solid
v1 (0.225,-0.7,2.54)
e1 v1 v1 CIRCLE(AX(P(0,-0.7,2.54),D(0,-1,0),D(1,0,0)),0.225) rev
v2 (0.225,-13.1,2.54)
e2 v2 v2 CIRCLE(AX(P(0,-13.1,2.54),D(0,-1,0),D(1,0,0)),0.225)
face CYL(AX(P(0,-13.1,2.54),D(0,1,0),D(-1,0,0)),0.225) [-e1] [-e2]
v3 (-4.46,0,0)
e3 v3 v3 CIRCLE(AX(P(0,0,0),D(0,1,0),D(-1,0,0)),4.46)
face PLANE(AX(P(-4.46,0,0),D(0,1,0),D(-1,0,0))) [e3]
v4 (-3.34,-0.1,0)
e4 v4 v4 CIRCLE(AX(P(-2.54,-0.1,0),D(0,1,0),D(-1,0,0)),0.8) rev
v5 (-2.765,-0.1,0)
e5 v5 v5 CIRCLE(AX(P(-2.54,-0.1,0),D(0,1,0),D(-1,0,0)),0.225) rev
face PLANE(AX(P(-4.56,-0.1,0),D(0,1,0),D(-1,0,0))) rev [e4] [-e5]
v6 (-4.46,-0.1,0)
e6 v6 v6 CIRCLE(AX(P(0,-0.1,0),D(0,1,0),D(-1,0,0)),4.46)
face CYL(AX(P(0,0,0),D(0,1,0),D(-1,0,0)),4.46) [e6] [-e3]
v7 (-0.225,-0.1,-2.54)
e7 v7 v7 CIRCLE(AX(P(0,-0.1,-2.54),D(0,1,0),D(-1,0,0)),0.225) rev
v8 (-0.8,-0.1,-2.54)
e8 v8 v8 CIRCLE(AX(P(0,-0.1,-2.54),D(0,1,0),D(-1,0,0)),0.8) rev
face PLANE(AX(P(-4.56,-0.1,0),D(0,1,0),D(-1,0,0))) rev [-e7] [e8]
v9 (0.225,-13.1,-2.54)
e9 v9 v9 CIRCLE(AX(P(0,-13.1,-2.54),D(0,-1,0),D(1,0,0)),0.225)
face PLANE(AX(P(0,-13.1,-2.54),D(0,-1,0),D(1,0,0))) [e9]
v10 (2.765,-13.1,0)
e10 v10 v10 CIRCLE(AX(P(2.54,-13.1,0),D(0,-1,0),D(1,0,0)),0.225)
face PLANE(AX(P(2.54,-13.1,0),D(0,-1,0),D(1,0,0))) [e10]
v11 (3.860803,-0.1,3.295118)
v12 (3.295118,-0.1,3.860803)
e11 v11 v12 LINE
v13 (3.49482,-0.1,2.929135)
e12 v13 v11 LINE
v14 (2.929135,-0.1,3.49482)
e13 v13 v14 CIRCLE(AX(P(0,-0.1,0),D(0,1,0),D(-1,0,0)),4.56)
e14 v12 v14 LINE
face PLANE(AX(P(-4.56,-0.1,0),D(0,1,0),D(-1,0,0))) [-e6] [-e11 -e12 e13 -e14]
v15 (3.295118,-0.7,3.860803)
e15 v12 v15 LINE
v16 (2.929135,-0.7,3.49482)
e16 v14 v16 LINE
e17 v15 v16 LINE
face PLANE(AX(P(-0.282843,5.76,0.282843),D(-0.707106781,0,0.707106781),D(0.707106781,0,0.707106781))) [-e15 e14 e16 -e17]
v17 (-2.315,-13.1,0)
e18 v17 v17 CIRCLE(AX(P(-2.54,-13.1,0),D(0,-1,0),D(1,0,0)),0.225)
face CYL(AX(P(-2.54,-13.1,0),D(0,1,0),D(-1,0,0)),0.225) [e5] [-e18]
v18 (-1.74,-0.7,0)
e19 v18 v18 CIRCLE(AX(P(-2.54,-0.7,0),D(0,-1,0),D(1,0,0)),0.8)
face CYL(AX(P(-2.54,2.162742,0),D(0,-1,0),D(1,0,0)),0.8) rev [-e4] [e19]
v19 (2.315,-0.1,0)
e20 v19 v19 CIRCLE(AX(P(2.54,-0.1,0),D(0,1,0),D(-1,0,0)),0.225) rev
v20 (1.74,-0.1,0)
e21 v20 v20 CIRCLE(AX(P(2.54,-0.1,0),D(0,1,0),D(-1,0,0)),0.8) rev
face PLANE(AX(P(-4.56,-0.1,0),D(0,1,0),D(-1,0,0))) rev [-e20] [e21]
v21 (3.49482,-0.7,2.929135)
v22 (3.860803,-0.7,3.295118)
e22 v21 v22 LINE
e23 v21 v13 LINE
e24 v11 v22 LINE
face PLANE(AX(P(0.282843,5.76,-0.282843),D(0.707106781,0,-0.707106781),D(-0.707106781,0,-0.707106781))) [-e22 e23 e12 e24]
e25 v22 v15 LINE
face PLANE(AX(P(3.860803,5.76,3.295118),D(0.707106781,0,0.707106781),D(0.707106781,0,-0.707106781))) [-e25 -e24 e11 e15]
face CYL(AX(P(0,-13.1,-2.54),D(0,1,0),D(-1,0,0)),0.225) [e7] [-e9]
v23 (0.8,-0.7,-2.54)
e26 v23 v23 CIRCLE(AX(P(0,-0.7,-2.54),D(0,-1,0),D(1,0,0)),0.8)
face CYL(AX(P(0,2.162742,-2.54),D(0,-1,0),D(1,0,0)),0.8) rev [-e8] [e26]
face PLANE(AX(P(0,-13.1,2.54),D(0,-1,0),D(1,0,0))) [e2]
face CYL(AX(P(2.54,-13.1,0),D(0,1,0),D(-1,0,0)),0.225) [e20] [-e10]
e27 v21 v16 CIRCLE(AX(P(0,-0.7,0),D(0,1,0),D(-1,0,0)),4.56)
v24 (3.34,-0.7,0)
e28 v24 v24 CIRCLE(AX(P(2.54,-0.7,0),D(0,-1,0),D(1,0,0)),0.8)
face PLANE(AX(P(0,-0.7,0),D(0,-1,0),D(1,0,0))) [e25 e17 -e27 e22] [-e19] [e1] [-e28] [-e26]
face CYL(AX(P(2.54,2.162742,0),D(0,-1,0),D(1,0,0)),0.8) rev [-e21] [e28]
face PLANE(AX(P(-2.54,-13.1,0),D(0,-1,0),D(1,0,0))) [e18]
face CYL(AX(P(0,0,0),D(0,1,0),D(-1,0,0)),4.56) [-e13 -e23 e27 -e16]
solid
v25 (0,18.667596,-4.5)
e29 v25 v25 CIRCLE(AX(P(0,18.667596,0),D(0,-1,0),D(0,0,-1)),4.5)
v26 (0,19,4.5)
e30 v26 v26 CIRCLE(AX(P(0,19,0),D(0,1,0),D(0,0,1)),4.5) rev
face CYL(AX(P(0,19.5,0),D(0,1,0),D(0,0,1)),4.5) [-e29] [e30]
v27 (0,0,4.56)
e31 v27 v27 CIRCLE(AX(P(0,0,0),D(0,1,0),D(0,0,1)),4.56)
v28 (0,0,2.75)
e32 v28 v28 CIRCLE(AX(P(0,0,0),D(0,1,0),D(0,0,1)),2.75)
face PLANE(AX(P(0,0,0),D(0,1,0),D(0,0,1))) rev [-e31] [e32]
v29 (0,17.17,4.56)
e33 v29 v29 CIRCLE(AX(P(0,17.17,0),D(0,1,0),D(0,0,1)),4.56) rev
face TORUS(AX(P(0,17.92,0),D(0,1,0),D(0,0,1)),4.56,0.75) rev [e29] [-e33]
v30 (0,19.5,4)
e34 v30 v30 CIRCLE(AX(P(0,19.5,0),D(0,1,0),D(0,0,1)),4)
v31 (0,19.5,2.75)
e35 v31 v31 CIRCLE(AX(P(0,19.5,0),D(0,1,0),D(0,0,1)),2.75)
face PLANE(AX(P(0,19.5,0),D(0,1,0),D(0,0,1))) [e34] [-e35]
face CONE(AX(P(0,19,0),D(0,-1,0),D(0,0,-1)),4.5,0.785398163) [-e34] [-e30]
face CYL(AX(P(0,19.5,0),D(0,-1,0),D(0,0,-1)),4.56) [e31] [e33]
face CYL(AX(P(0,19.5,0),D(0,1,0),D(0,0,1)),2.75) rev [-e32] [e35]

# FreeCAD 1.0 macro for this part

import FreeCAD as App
import Part
import Sketcher

V = App.Vector
Q = App.Units.Quantity


def edges_at(feature, points):
    """Names of the edges that pass closest to the given points."""
    edges = feature.Shape.Edges
    near = lambda p: min(range(len(edges)), key=lambda i: edges[i].distToShape(Part.Vertex(*p))[0])
    return sorted({f"Edge{near(p) + 1}" for p in points})

doc = App.newDocument("Part")
body = doc.addObject("PartDesign::Body", "Body")

# Sketch on XZ plane
sketch1 = doc.addObject("Sketcher::SketchObject", "Sketch")
body.addObject(sketch1)
sketch1.AttachmentSupport = (doc.XZ_Plane, [""])
sketch1.MapMode = "FlatFace"
sketch1.addGeometry(Part.Circle(V(0, 0, 0), V(0, 0, 1), 4.6), False)
sketch1.addConstraint(Sketcher.Constraint("Coincident", 0, 3, -1, 1))
sketch1.addConstraint(Sketcher.Constraint("Diameter", 0, 9.12))
pad1 = doc.addObject("PartDesign::Pad", "Pad")
body.addObject(pad1)
pad1.Profile = sketch1
pad1.Length = 19.5
pad1.Reversed = True

# Sketch on XY plane
sketch2 = doc.addObject("Sketcher::SketchObject", "Sketch001")
body.addObject(sketch2)
sketch2.AttachmentSupport = (doc.XY_Plane, [""])
sketch2.MapMode = "FlatFace"
sketch2.addGeometry(Part.Circle(V(-4.6, 17.9, 0), V(0, 0, 1), 0.8), False)
sketch2.addConstraint(Sketcher.Constraint("Diameter", 0, 1.5))
sketch2.addConstraint(Sketcher.Constraint("DistanceX", 0, 3, -1, 1, 4.56))
sketch2.addConstraint(Sketcher.Constraint("DistanceY", -1, 1, 0, 3, 17.92))
groove = doc.addObject("PartDesign::Groove", "Groove")
body.addObject(groove)
groove.Profile = sketch2
groove.ReferenceAxis = (sketch2, ["V_Axis"])
groove.Angle = 360

# Sketch on XY plane
sketch3 = doc.addObject("Sketcher::SketchObject", "Sketch002")
body.addObject(sketch3)
sketch3.AttachmentSupport = (doc.XY_Plane, [""])
sketch3.MapMode = "FlatFace"
sketch3.addGeometry(Part.LineSegment(V(-6.9, 19.7, 0), V(-6.9, 18.2, 0)), False)
sketch3.addGeometry(Part.LineSegment(V(-6.9, 18.2, 0), V(-4.5, 18.2, 0)), False)
sketch3.addGeometry(Part.LineSegment(V(-4.5, 18.2, 0), V(-4.5, 19.7, 0)), False)
sketch3.addGeometry(Part.LineSegment(V(-4.5, 19.7, 0), V(-6.9, 19.7, 0)), False)
sketch3.addConstraint(Sketcher.Constraint("Coincident", 0, 2, 1, 1))
sketch3.addConstraint(Sketcher.Constraint("Coincident", 1, 2, 2, 1))
sketch3.addConstraint(Sketcher.Constraint("Coincident", 2, 2, 3, 1))
sketch3.addConstraint(Sketcher.Constraint("Coincident", 3, 2, 0, 1))
sketch3.addConstraint(Sketcher.Constraint("Vertical", 0))
sketch3.addConstraint(Sketcher.Constraint("Horizontal", 1))
sketch3.addConstraint(Sketcher.Constraint("Vertical", 2))
sketch3.addConstraint(Sketcher.Constraint("Horizontal", 3))
sketch3.addConstraint(Sketcher.Constraint("DistanceX", 1, 2, -1, 1, 4.5))
sketch3.addConstraint(Sketcher.Constraint("DistanceX", 1, 1, 1, 2, 2.392897))
sketch3.addConstraint(Sketcher.Constraint("DistanceY", 0, 2, 0, 1, 1.508565))
sketch3.addConstraint(Sketcher.Constraint("DistanceY", -1, 1, 2, 2, 19.737478))
groove2 = doc.addObject("PartDesign::Groove", "Groove001")
body.addObject(groove2)
groove2.Profile = sketch3
groove2.ReferenceAxis = (sketch3, ["V_Axis"])
groove2.Angle = 360
doc.recompute()

chamfer = doc.addObject("PartDesign::Chamfer", "Chamfer")
body.addObject(chamfer)
chamfer.Base = (groove2, edges_at(groove2, [(0, 19.5, -4.5)]))
chamfer.Size = 0.5

# Sketch on XZ plane
sketch4 = doc.addObject("Sketcher::SketchObject", "Sketch003")
body.addObject(sketch4)
sketch4.AttachmentSupport = (doc.XZ_Plane, [""])
sketch4.MapMode = "FlatFace"
sketch4.AttachmentOffset = App.Placement(V(0, 0, -19.5), App.Rotation())
sketch4.addGeometry(Part.Circle(V(0, 0, 0), V(0, 0, 1), 2.8), False)
sketch4.addConstraint(Sketcher.Constraint("Coincident", 0, 3, -1, 1))
sketch4.addConstraint(Sketcher.Constraint("Diameter", 0, 5.5))
doc.recompute()
hole = doc.addObject("PartDesign::Hole", "Hole")
body.addObject(hole)
hole.Profile = sketch4
hole.ThreadType = "None"
hole.Diameter = 5.5
hole.DepthType = "ThroughAll"
hole.Reversed = True
body2 = doc.addObject("PartDesign::Body", "Body001")

# Sketch on XY plane
sketch5 = doc.addObject("Sketcher::SketchObject", "Sketch004")
body2.addObject(sketch5)
sketch5.AttachmentSupport = (doc.getObject("XY_Plane001"), [""])
sketch5.MapMode = "FlatFace"
sketch5.addGeometry(Part.LineSegment(V(0, -0.7, 0), V(0, 0, 0)), False)
sketch5.addGeometry(Part.LineSegment(V(0, 0, 0), V(-4.46, 0, 0)), False)
sketch5.addGeometry(Part.LineSegment(V(-4.46, 0, 0), V(-4.46, -0.1, 0)), False)
sketch5.addGeometry(Part.LineSegment(V(-4.46, -0.1, 0), V(-4.56, -0.1, 0)), False)
sketch5.addGeometry(Part.LineSegment(V(-4.56, -0.1, 0), V(-4.56, -0.7, 0)), False)
sketch5.addGeometry(Part.LineSegment(V(-4.56, -0.7, 0), V(0, -0.7, 0)), False)
sketch5.addConstraint(Sketcher.Constraint("Coincident", 0, 2, 1, 1))
sketch5.addConstraint(Sketcher.Constraint("Coincident", 1, 2, 2, 1))
sketch5.addConstraint(Sketcher.Constraint("Coincident", 2, 2, 3, 1))
sketch5.addConstraint(Sketcher.Constraint("Coincident", 3, 2, 4, 1))
sketch5.addConstraint(Sketcher.Constraint("Coincident", 4, 2, 5, 1))
sketch5.addConstraint(Sketcher.Constraint("Coincident", 5, 2, 0, 1))
sketch5.addConstraint(Sketcher.Constraint("Vertical", 0))
sketch5.addConstraint(Sketcher.Constraint("Horizontal", 1))
sketch5.addConstraint(Sketcher.Constraint("Vertical", 2))
sketch5.addConstraint(Sketcher.Constraint("Horizontal", 3))
sketch5.addConstraint(Sketcher.Constraint("Vertical", 4))
sketch5.addConstraint(Sketcher.Constraint("Horizontal", 5))
sketch5.addConstraint(Sketcher.Constraint("Coincident", 0, 2, -1, 1))
sketch5.addConstraint(Sketcher.Constraint("Equal", 3, 2))
sketch5.addConstraint(Sketcher.Constraint("DistanceX", 3, 2, 3, 1, 0.1))
sketch5.addConstraint(Sketcher.Constraint("DistanceY", 0, 1, 0, 2, 0.7))
sketch5.addConstraint(Sketcher.Constraint("DistanceX", 1, 2, 1, 1, 4.46))
revolution = doc.addObject("PartDesign::Revolution", "Revolution")
body2.addObject(revolution)
revolution.Profile = sketch5
revolution.ReferenceAxis = (sketch5, ["V_Axis"])
revolution.Angle = 360

# Sketch on XZ plane
sketch6 = doc.addObject("Sketcher::SketchObject", "Sketch005")
body2.addObject(sketch6)
sketch6.AttachmentSupport = (doc.getObject("XZ_Plane001"), [""])
sketch6.MapMode = "FlatFace"
sketch6.AttachmentOffset = App.Placement(V(0, 0, 0.7), App.Rotation())
sketch6.addGeometry(Part.LineSegment(V(0.28, -0.28, 0), V(3.86, 3.3, 0)), False)
sketch6.addGeometry(Part.LineSegment(V(3.86, 3.3, 0), V(3.58, 3.58, 0)), False)
sketch6.addGeometry(Part.LineSegment(V(3.58, 3.58, 0), V(3.3, 3.86, 0)), False)
sketch6.addGeometry(Part.LineSegment(V(3.3, 3.86, 0), V(-0.28, 0.28, 0)), False)
sketch6.addGeometry(Part.LineSegment(V(-0.28, 0.28, 0), V(0.28, -0.28, 0)), False)
sketch6.addConstraint(Sketcher.Constraint("Coincident", 0, 2, 1, 1))
sketch6.addConstraint(Sketcher.Constraint("Coincident", 1, 2, 2, 1))
sketch6.addConstraint(Sketcher.Constraint("Coincident", 2, 2, 3, 1))
sketch6.addConstraint(Sketcher.Constraint("Coincident", 3, 2, 4, 1))
sketch6.addConstraint(Sketcher.Constraint("Coincident", 4, 2, 0, 1))
sketch6.addConstraint(Sketcher.Constraint("Symmetric", 3, 2, 4, 2, -1, 1))
sketch6.addConstraint(Sketcher.Constraint("Perpendicular", 0, 1))
sketch6.addConstraint(Sketcher.Constraint("Parallel", 1, 2))
sketch6.addConstraint(Sketcher.Constraint("Perpendicular", 2, 3))
sketch6.addConstraint(Sketcher.Constraint("Perpendicular", 3, 4))
sketch6.addConstraint(Sketcher.Constraint("Equal", 1, 2))
sketch6.addConstraint(Sketcher.Constraint("Angle", 0, Q("45 deg")))
sketch6.addConstraint(Sketcher.Constraint("Distance", 1, 0.4))
sketch6.addConstraint(Sketcher.Constraint("Distance", 0, 5.06))
pad2 = doc.addObject("PartDesign::Pad", "Pad001")
body2.addObject(pad2)
pad2.Profile = sketch6
pad2.Length = 0.6
pad2.Reversed = True

# Sketch on XZ plane
sketch7 = doc.addObject("Sketcher::SketchObject", "Sketch006")
body2.addObject(sketch7)
sketch7.AttachmentSupport = (doc.getObject("XZ_Plane001"), [""])
sketch7.MapMode = "FlatFace"
sketch7.AttachmentOffset = App.Placement(V(0, 0, 0.7), App.Rotation())
sketch7.addGeometry(Part.Circle(V(2.5, 0, 0), V(0, 0, 1), 0.8), False)
sketch7.addGeometry(Part.Circle(V(0, -2.5, 0), V(0, 0, 1), 0.8), False)
sketch7.addGeometry(Part.Circle(V(-2.5, 0, 0), V(0, 0, 1), 0.8), False)
sketch7.addConstraint(Sketcher.Constraint("Equal", 0, 1))
sketch7.addConstraint(Sketcher.Constraint("Equal", 1, 2))
sketch7.addConstraint(Sketcher.Constraint("Symmetric", 0, 3, 2, 3, -1, 1))
sketch7.addConstraint(Sketcher.Constraint("PointOnObject", 0, 3, -1))
sketch7.addConstraint(Sketcher.Constraint("PointOnObject", 1, 3, -2))
sketch7.addConstraint(Sketcher.Constraint("Diameter", 0, 1.6))
sketch7.addConstraint(Sketcher.Constraint("DistanceX", -1, 1, 0, 3, 2.54))
sketch7.addConstraint(Sketcher.Constraint("DistanceY", 1, 3, -1, 1, 2.54))
pocket1 = doc.addObject("PartDesign::Pocket", "Pocket")
body2.addObject(pocket1)
pocket1.Profile = sketch7
pocket1.Length = 0.6

# Sketch on XZ plane
sketch8 = doc.addObject("Sketcher::SketchObject", "Sketch007")
body2.addObject(sketch8)
sketch8.AttachmentSupport = (doc.getObject("XZ_Plane001"), [""])
sketch8.MapMode = "FlatFace"
sketch8.AttachmentOffset = App.Placement(V(0, 0, 0.1), App.Rotation())
sketch8.addGeometry(Part.Circle(V(0, 2.54, 0), V(0, 0, 1), 0.23), False)
sketch8.addGeometry(Part.Circle(V(2.54, 0, 0), V(0, 0, 1), 0.23), False)
sketch8.addGeometry(Part.Circle(V(0, -2.54, 0), V(0, 0, 1), 0.23), False)
sketch8.addGeometry(Part.Circle(V(-2.54, 0, 0), V(0, 0, 1), 0.23), False)
sketch8.addConstraint(Sketcher.Constraint("Equal", 0, 1))
sketch8.addConstraint(Sketcher.Constraint("Equal", 1, 2))
sketch8.addConstraint(Sketcher.Constraint("Equal", 2, 3))
sketch8.addConstraint(Sketcher.Constraint("Symmetric", 0, 3, 2, 3, -1, 1))
sketch8.addConstraint(Sketcher.Constraint("Symmetric", 1, 3, 3, 3, -1, 1))
sketch8.addConstraint(Sketcher.Constraint("PointOnObject", 0, 3, -2))
sketch8.addConstraint(Sketcher.Constraint("PointOnObject", 1, 3, -1))
sketch8.addConstraint(Sketcher.Constraint("Diameter", 0, 0.45))
sketch8.addConstraint(Sketcher.Constraint("DistanceY", -1, 1, 0, 3, 2.54))
sketch8.addConstraint(Sketcher.Constraint("DistanceX", -1, 1, 1, 3, 2.54))
pad3 = doc.addObject("PartDesign::Pad", "Pad002")
body2.addObject(pad3)
pad3.Profile = sketch8
pad3.Length = 13

doc.recompute()
